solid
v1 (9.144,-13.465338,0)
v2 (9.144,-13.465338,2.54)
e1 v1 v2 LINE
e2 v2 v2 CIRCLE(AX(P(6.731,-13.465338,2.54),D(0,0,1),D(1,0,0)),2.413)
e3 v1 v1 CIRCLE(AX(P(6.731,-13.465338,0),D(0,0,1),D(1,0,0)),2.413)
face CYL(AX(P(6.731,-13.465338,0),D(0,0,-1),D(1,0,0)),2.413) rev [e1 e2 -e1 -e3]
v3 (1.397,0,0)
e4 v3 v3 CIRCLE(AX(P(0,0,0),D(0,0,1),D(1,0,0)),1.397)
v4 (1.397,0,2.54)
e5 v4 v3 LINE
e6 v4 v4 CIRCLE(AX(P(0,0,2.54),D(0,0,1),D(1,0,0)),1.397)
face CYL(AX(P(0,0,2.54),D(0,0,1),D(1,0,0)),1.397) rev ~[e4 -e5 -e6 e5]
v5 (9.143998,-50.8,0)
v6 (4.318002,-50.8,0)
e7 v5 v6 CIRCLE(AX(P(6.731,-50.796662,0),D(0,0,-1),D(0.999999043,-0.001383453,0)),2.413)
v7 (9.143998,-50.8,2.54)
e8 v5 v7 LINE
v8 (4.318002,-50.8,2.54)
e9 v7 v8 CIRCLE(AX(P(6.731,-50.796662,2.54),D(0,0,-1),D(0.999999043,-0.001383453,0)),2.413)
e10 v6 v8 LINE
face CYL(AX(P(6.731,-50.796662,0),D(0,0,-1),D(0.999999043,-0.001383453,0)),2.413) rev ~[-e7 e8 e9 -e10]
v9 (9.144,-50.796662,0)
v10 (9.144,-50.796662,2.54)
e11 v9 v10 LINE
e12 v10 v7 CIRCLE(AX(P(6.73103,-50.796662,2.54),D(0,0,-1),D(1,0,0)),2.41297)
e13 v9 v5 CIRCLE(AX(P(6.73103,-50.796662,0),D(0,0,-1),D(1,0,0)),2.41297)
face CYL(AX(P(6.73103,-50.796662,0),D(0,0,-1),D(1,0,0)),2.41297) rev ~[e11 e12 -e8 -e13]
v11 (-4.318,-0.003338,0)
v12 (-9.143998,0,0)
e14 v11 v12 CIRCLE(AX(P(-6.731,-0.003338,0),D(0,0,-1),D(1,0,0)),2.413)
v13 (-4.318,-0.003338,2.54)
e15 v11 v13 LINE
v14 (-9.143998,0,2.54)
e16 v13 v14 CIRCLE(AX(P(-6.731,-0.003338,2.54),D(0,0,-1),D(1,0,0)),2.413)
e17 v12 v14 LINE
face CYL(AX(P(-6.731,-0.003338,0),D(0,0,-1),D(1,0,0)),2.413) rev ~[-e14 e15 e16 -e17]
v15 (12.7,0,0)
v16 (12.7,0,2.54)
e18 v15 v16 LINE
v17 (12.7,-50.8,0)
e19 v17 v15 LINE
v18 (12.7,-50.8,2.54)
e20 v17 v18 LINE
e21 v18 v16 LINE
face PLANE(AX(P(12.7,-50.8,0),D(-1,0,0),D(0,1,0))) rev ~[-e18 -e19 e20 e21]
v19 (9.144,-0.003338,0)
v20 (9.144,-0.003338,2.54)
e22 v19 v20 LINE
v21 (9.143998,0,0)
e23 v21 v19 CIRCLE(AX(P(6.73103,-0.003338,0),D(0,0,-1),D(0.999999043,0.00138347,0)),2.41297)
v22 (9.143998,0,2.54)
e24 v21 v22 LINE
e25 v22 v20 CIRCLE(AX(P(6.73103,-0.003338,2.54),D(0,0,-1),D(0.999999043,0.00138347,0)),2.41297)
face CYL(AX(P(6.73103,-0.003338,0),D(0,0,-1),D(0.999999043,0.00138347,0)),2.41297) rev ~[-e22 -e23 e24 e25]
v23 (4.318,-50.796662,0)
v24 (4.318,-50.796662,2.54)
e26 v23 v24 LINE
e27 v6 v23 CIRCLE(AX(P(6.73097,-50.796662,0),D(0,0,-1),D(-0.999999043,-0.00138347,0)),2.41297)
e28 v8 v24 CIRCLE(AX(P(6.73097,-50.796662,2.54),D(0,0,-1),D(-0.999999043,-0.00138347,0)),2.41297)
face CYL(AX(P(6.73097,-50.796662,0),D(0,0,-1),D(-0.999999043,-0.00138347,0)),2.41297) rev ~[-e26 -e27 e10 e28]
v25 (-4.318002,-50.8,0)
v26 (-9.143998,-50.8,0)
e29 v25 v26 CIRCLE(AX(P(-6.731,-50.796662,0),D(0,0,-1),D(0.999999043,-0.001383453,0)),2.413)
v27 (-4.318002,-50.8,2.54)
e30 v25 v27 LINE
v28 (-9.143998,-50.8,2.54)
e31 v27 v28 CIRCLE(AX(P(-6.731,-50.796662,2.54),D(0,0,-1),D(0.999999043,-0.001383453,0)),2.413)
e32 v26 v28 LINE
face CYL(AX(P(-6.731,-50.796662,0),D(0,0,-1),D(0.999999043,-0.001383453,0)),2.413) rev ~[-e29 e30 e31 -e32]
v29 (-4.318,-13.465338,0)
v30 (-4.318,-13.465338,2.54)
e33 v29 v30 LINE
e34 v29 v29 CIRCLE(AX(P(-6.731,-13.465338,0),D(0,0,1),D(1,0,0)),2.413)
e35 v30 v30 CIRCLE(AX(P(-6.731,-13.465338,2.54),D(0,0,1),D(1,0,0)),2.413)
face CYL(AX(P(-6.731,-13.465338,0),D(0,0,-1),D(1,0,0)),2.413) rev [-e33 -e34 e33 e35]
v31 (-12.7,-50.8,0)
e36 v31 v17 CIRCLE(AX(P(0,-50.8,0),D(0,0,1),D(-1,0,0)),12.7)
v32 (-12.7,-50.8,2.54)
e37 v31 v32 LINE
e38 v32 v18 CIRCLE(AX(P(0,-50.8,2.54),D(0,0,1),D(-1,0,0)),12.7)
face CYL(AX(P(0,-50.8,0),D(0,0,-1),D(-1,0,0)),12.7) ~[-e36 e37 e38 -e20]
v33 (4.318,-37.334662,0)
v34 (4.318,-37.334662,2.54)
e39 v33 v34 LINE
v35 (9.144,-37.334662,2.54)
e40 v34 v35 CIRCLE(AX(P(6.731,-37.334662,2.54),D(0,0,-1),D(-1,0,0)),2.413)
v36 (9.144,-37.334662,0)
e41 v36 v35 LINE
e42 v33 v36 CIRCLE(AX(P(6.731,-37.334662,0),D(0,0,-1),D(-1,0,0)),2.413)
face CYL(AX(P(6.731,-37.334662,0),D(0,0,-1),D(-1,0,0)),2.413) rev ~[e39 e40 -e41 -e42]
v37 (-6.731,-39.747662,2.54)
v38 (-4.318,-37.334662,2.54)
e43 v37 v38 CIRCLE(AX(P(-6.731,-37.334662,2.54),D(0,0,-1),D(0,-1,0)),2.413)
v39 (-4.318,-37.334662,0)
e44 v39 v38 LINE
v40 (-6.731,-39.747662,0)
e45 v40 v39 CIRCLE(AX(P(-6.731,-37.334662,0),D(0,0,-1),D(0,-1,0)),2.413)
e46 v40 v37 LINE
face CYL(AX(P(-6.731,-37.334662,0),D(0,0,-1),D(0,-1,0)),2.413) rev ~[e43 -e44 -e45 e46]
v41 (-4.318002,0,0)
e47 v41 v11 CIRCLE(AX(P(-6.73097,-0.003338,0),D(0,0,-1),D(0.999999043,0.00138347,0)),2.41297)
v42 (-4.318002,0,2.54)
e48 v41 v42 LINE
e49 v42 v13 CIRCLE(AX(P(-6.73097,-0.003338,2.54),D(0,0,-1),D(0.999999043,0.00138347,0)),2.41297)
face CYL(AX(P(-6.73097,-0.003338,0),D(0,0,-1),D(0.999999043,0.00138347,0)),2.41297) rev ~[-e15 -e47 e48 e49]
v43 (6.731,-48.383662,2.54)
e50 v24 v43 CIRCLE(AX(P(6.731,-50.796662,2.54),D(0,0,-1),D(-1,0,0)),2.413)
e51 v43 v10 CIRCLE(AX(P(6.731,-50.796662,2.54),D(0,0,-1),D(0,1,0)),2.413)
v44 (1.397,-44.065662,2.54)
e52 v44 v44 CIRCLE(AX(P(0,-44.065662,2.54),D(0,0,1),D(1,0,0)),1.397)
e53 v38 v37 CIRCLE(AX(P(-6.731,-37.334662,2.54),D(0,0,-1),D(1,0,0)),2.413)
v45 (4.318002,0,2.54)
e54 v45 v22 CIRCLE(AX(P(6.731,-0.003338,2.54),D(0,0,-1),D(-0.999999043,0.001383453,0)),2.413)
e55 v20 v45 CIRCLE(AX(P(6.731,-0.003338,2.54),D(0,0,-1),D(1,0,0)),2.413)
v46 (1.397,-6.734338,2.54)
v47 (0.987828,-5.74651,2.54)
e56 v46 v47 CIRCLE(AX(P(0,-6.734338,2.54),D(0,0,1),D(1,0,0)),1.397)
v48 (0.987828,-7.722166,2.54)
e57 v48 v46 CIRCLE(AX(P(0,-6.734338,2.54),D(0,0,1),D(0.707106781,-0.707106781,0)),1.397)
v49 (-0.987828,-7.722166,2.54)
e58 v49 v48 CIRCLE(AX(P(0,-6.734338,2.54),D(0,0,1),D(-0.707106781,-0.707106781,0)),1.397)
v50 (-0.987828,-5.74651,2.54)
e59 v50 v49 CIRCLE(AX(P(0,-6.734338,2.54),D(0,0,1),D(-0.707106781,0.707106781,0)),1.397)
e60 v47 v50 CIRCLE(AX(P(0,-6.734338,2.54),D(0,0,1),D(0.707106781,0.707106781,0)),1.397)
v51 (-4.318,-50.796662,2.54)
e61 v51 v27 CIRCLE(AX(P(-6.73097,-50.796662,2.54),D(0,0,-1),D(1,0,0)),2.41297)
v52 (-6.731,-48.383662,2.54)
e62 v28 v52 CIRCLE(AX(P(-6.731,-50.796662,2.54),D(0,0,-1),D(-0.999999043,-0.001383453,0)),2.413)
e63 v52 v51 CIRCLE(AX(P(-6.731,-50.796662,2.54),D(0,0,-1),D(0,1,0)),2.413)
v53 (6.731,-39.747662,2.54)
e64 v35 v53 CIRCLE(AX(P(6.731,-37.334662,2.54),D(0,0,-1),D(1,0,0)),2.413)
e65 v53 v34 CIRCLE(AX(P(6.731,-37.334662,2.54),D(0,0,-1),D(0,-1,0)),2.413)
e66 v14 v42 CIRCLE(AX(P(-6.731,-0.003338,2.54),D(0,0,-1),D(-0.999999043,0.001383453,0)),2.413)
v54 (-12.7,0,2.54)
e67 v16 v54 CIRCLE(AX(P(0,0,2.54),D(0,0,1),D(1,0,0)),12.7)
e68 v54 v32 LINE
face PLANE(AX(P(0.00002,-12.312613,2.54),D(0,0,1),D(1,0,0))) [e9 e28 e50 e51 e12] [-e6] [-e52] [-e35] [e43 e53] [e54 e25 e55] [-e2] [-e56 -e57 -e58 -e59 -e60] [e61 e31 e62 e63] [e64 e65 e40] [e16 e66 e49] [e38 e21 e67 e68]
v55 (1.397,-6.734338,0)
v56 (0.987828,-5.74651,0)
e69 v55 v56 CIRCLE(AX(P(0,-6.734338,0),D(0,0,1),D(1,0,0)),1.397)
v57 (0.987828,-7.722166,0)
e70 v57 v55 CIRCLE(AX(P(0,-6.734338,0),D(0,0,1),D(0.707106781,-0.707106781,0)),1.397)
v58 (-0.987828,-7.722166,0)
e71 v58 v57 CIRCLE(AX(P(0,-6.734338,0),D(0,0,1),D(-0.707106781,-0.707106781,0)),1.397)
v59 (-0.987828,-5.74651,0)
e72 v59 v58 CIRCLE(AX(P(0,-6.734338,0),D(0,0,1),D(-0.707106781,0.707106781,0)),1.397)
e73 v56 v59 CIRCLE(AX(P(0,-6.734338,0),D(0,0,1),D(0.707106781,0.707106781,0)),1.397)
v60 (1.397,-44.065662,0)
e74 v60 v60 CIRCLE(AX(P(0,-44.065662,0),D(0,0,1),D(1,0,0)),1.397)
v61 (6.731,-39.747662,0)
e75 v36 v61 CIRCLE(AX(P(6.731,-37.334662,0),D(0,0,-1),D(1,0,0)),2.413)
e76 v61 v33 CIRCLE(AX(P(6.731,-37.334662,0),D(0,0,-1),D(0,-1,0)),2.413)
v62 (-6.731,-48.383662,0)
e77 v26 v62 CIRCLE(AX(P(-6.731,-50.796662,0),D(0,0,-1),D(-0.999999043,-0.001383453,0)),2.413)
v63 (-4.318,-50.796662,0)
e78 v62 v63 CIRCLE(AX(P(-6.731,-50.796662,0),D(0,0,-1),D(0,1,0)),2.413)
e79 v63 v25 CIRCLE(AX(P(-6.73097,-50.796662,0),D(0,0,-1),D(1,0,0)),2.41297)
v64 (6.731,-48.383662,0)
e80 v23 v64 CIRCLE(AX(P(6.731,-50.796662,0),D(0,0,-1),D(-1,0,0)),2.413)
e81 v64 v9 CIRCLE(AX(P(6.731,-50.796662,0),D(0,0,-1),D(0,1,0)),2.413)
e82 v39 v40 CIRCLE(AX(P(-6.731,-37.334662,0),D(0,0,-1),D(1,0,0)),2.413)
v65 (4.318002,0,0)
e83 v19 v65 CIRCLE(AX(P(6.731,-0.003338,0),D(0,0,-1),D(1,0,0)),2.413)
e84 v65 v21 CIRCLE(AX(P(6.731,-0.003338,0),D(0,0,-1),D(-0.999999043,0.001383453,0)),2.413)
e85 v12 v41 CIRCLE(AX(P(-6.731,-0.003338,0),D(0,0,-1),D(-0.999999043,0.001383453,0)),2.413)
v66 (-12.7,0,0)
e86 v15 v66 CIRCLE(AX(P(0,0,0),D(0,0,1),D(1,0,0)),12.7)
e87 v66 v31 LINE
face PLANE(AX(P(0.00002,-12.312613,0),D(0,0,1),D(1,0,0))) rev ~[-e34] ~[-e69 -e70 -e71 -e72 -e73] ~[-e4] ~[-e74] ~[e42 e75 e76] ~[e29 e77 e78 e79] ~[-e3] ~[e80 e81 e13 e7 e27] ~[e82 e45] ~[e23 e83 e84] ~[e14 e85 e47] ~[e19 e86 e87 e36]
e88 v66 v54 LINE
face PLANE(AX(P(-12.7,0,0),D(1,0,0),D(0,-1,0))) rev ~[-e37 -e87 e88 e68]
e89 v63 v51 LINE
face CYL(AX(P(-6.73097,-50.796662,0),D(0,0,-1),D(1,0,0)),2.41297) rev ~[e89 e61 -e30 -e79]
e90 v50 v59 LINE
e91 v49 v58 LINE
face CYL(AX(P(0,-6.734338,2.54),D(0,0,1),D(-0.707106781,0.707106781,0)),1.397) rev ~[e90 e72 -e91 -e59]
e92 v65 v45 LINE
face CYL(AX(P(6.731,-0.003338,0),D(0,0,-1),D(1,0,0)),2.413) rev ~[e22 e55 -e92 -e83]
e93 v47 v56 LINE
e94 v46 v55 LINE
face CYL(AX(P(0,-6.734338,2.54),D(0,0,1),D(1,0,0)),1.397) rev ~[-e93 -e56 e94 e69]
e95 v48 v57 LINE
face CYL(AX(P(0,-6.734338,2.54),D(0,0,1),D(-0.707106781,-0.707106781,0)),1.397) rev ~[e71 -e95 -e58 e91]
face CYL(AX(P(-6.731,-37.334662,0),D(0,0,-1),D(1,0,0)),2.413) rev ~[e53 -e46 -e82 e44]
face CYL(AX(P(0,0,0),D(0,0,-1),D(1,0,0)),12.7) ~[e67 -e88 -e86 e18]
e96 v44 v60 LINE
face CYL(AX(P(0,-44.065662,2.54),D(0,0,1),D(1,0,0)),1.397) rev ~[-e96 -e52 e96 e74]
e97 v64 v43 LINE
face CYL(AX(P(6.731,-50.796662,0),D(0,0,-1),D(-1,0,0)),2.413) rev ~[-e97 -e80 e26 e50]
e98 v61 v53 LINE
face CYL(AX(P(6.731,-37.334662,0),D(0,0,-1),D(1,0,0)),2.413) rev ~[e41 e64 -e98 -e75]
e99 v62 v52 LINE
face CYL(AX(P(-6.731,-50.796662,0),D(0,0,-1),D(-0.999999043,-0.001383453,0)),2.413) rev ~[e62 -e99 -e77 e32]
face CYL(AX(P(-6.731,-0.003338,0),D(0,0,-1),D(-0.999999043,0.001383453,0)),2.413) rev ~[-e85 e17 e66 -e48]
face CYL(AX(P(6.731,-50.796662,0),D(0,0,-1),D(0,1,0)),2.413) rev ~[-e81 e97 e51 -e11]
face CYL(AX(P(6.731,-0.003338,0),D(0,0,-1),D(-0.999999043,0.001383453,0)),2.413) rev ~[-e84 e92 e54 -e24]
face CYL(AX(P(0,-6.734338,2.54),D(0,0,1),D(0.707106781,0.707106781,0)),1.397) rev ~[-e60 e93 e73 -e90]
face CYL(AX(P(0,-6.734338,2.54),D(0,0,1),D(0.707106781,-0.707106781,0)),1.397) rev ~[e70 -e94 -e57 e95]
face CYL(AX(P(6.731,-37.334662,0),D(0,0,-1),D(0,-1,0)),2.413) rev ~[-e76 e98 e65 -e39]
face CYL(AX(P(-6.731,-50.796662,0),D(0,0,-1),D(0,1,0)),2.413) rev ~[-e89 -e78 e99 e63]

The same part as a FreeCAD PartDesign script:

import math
import FreeCAD as App
import Part
import Sketcher
Q = App.Units.Quantity

doc = App.newDocument("Part")
body = doc.addObject("PartDesign::Body", "Body")

# Sketch on XY plane
sketch1 = body.newObject("Sketcher::SketchObject", "Sketch")
sketch1.AttachmentSupport = (doc.getObject("XY_Plane"), [""])
sketch1.MapMode = "FlatFace"
sketch1.addGeometry(Part.ArcOfCircle(Part.Circle(App.Vector(0, 0, 0), App.Vector(0, 0, 1), 12.7), math.radians(0), math.radians(180)), False)
sketch1.addGeometry(Part.LineSegment(App.Vector(-12.7, 0, 0), App.Vector(-12.7, -50.8, 0)), False)
sketch1.addGeometry(Part.ArcOfCircle(Part.Circle(App.Vector(0, -50.8, 0), App.Vector(0, 0, 1), 12.7), math.radians(180), math.radians(360)), False)
sketch1.addGeometry(Part.LineSegment(App.Vector(12.7, -50.8, 0), App.Vector(12.7, 0, 0)), False)
sketch1.addGeometry(Part.ArcOfCircle(Part.Circle(App.Vector(-6.731, -50.7967, 0), App.Vector(0, 0, 1), 2.413), math.radians(90), math.radians(180)), False)
sketch1.addGeometry(Part.ArcOfCircle(Part.Circle(App.Vector(-6.731, -50.7967, 0), App.Vector(0, 0, 1), 2.413), math.radians(0), math.radians(90)), False)
sketch1.addGeometry(Part.ArcOfCircle(Part.Circle(App.Vector(-6.731, -50.7967, 0), App.Vector(0, 0, 1), 2.413), math.radians(-0.08), math.radians(0)), False)
sketch1.addGeometry(Part.ArcOfCircle(Part.Circle(App.Vector(-6.731, -50.7967, 0), App.Vector(0, 0, 1), 2.413), math.radians(-180), math.radians(0)), False)
sketch1.addGeometry(Part.ArcOfCircle(Part.Circle(App.Vector(-6.731, -37.3347, 0), App.Vector(0, 0, 1), 2.413), math.radians(0), math.radians(270)), False)
sketch1.addGeometry(Part.ArcOfCircle(Part.Circle(App.Vector(-6.731, -37.3347, 0), App.Vector(0, 0, 1), 2.413), math.radians(-90), math.radians(0)), False)
sketch1.addGeometry(Part.ArcOfCircle(Part.Circle(App.Vector(6.731, -37.3347, 0), App.Vector(0, 0, 1), 2.413), math.radians(0), math.radians(180)), False)
sketch1.addGeometry(Part.ArcOfCircle(Part.Circle(App.Vector(6.731, -37.3347, 0), App.Vector(0, 0, 1), 2.413), math.radians(-90), math.radians(0)), False)
sketch1.addGeometry(Part.ArcOfCircle(Part.Circle(App.Vector(6.731, -37.3347, 0), App.Vector(0, 0, 1), 2.413), math.radians(180), math.radians(270)), False)
sketch1.addGeometry(Part.ArcOfCircle(Part.Circle(App.Vector(6.731, -50.7967, 0), App.Vector(0, 0, 1), 2.413), math.radians(0), math.radians(90)), False)
sketch1.addGeometry(Part.ArcOfCircle(Part.Circle(App.Vector(6.731, -50.7967, 0), App.Vector(0, 0, 1), 2.413), math.radians(-0.08), math.radians(0)), False)
sketch1.addGeometry(Part.ArcOfCircle(Part.Circle(App.Vector(6.731, -50.7967, 0), App.Vector(0, 0, 1), 2.413), math.radians(-180), math.radians(0)), False)
sketch1.addGeometry(Part.ArcOfCircle(Part.Circle(App.Vector(6.731, -50.7967, 0), App.Vector(0, 0, 1), 2.413), math.radians(180), math.radians(180.08)), False)
sketch1.addGeometry(Part.ArcOfCircle(Part.Circle(App.Vector(6.731, -50.7967, 0), App.Vector(0, 0, 1), 2.413), math.radians(90), math.radians(180)), False)
sketch1.addGeometry(Part.ArcOfCircle(Part.Circle(App.Vector(6.731, -0.0033, 0), App.Vector(0, 0, 1), 2.413), math.radians(0), math.radians(0.08)), False)
sketch1.addGeometry(Part.ArcOfCircle(Part.Circle(App.Vector(6.731, -0.0033, 0), App.Vector(0, 0, 1), 2.413), math.radians(180), math.radians(360)), False)
sketch1.addGeometry(Part.ArcOfCircle(Part.Circle(App.Vector(6.731, -0.0033, 0), App.Vector(0, 0, 1), 2.413), math.radians(0), math.radians(180)), False)
sketch1.addGeometry(Part.ArcOfCircle(Part.Circle(App.Vector(-6.731, -0.0033, 0), App.Vector(0, 0, 1), 2.413), math.radians(180), math.radians(360)), False)
sketch1.addGeometry(Part.ArcOfCircle(Part.Circle(App.Vector(-6.731, -0.0033, 0), App.Vector(0, 0, 1), 2.413), math.radians(0), math.radians(180)), False)
sketch1.addGeometry(Part.ArcOfCircle(Part.Circle(App.Vector(-6.731, -0.0033, 0), App.Vector(0, 0, 1), 2.413), math.radians(0), math.radians(0.08)), False)
sketch1.addGeometry(Part.Circle(App.Vector(-6.731, -13.4653, 0), App.Vector(0, 0, 1), 2.413), False)
sketch1.addGeometry(Part.Circle(App.Vector(6.731, -13.4653, 0), App.Vector(0, 0, 1), 2.413), False)
sketch1.addConstraint(Sketcher.Constraint("Tangent", 0, 2, 1, 1))
sketch1.addConstraint(Sketcher.Constraint("Tangent", 1, 2, 2, 1))
sketch1.addConstraint(Sketcher.Constraint("Tangent", 2, 2, 3, 1))
sketch1.addConstraint(Sketcher.Constraint("Tangent", 3, 2, 0, 1))
sketch1.addConstraint(Sketcher.Constraint("Tangent", 4, 1, 5, 2))
sketch1.addConstraint(Sketcher.Constraint("Tangent", 5, 1, 6, 2))
sketch1.addConstraint(Sketcher.Constraint("Tangent", 6, 1, 7, 2))
sketch1.addConstraint(Sketcher.Constraint("Tangent", 7, 1, 4, 2))
sketch1.addConstraint(Sketcher.Constraint("Tangent", 8, 1, 9, 2))
sketch1.addConstraint(Sketcher.Constraint("Coincident", 9, 1, 8, 2))
sketch1.addConstraint(Sketcher.Constraint("Tangent", 10, 1, 11, 2))
sketch1.addConstraint(Sketcher.Constraint("Tangent", 11, 1, 12, 2))
sketch1.addConstraint(Sketcher.Constraint("Tangent", 12, 1, 10, 2))
sketch1.addConstraint(Sketcher.Constraint("Tangent", 13, 1, 14, 2))
sketch1.addConstraint(Sketcher.Constraint("Tangent", 14, 1, 15, 2))
sketch1.addConstraint(Sketcher.Constraint("Tangent", 15, 1, 16, 2))
sketch1.addConstraint(Sketcher.Constraint("Tangent", 16, 1, 17, 2))
sketch1.addConstraint(Sketcher.Constraint("Tangent", 17, 1, 13, 2))
sketch1.addConstraint(Sketcher.Constraint("Tangent", 18, 1, 19, 2))
sketch1.addConstraint(Sketcher.Constraint("Tangent", 19, 1, 20, 2))
sketch1.addConstraint(Sketcher.Constraint("Coincident", 20, 1, 18, 2))
sketch1.addConstraint(Sketcher.Constraint("Tangent", 21, 1, 22, 2))
sketch1.addConstraint(Sketcher.Constraint("Tangent", 22, 1, 23, 2))
sketch1.addConstraint(Sketcher.Constraint("Coincident", 23, 1, 21, 2))
sketch1.addConstraint(Sketcher.Constraint("Vertical", 1))
sketch1.addConstraint(Sketcher.Constraint("Vertical", 3))
sketch1.addConstraint(Sketcher.Constraint("Coincident", 0, 3, -1, 1))
sketch1.addConstraint(Sketcher.Constraint("Equal", 7, 8))
sketch1.addConstraint(Sketcher.Constraint("Equal", 9, 10))
sketch1.addConstraint(Sketcher.Constraint("Equal", 12, 13))
sketch1.addConstraint(Sketcher.Constraint("Equal", 6, 14))
sketch1.addConstraint(Sketcher.Constraint("Equal", 14, 16))
sketch1.addConstraint(Sketcher.Constraint("Equal", 16, 18))
sketch1.addConstraint(Sketcher.Constraint("Equal", 17, 19))
sketch1.addConstraint(Sketcher.Constraint("Equal", 20, 21))
sketch1.addConstraint(Sketcher.Constraint("Equal", 18, 23))
sketch1.addConstraint(Sketcher.Constraint("Equal", 22, 24))
sketch1.addConstraint(Sketcher.Constraint("Equal", 24, 25))
sketch1.addConstraint(Sketcher.Constraint("Symmetric", 20, 1, 21, 1, -1, 1))
sketch1.addConstraint(Sketcher.Constraint("Symmetric", 19, 1, 22, 1, -1, 1))
sketch1.addConstraint(Sketcher.Constraint("Symmetric", 8, 3, 10, 3, -2))
sketch1.addConstraint(Sketcher.Constraint("Symmetric", 4, 3, 13, 3, -2))
sketch1.addConstraint(Sketcher.Constraint("Symmetric", 24, 3, 25, 3, -2))
sketch1.addConstraint(Sketcher.Constraint("PointOnObject", 19, 1, -1))
sketch1.addConstraint(Sketcher.Constraint("PointOnObject", 20, 1, -1))
sketch1.addConstraint(Sketcher.Constraint("Horizontal", 17, 3, 5, 1))
sketch1.addConstraint(Sketcher.Constraint("Horizontal", 2, 2, 6, 1))
sketch1.addConstraint(Sketcher.Constraint("Horizontal", 6, 1, 7, 1))
sketch1.addConstraint(Sketcher.Constraint("Horizontal", 12, 3, 8, 1))
sketch1.addConstraint(Sketcher.Constraint("Horizontal", 8, 1, 10, 1))
sketch1.addConstraint(Sketcher.Constraint("Horizontal", 10, 1, 12, 1))
sketch1.addConstraint(Sketcher.Constraint("Horizontal", 5, 1, 13, 1))
sketch1.addConstraint(Sketcher.Constraint("Horizontal", 7, 1, 14, 1))
sketch1.addConstraint(Sketcher.Constraint("Horizontal", 14, 1, 15, 1))
sketch1.addConstraint(Sketcher.Constraint("Horizontal", 13, 1, 16, 1))
sketch1.addConstraint(Sketcher.Constraint("Horizontal", 23, 3, 18, 1))
sketch1.addConstraint(Sketcher.Constraint("Horizontal", 18, 1, 23, 1))
sketch1.addConstraint(Sketcher.Constraint("Vertical", 7, 3, 8, 3))
sketch1.addConstraint(Sketcher.Constraint("Vertical", 14, 3, 18, 3))
sketch1.addConstraint(Sketcher.Constraint("Vertical", 22, 3, 24, 3))
sketch1.addConstraint(Sketcher.Constraint("Vertical", 24, 3, 4, 1))
sketch1.addConstraint(Sketcher.Constraint("Vertical", 4, 1, 9, 1))
sketch1.addConstraint(Sketcher.Constraint("Vertical", 25, 3, 11, 1))
sketch1.addConstraint(Sketcher.Constraint("Vertical", 11, 1, 17, 1))
sketch1.addConstraint(Sketcher.Constraint("Radius", 0, Q("0.5 in")))
sketch1.addConstraint(Sketcher.Constraint("Diameter", 24, Q("0.19 in")))
sketch1.addConstraint(Sketcher.Constraint("DistanceY", 1, 2, 1, 1, Q("2 in")))
sketch1.addConstraint(Sketcher.Constraint("DistanceX", 5, 1, -1, 1, Q("0.17 in")))
sketch1.addConstraint(Sketcher.Constraint("DistanceY", 4, 3, 8, 3, Q("0.53 in")))
sketch1.addConstraint(Sketcher.Constraint("DistanceY", 24, 3, 21, 3, Q("0.53 in")))
sketch1.addConstraint(Sketcher.Constraint("Radius", 6, Q("2.41297 mm")))
sketch1.addConstraint(Sketcher.Constraint("DistanceY", 4, 3, -1, 1, Q("50.796662 mm")))
sketch1.addConstraint(Sketcher.Constraint("DistanceY", 18, 3, -1, 1, Q("0.003338 mm")))
pad1 = body.newObject("PartDesign::Pad", "Pad")
pad1.Profile = sketch1
pad1.Length = Q("0.1 in")

# Sketch on XY plane
sketch2 = body.newObject("Sketcher::SketchObject", "Sketch001")
sketch2.AttachmentSupport = (doc.getObject("XY_Plane"), [""])
sketch2.MapMode = "FlatFace"
sketch2.AttachmentOffset = App.Placement(App.Vector(0, 0, 0.1 * 25.4), App.Rotation())
sketch2.addGeometry(Part.Circle(App.Vector(0, 0, 0), App.Vector(0, 0, 1), 1.4), False)
sketch2.addGeometry(Part.ArcOfCircle(Part.Circle(App.Vector(0, -6.7, 0), App.Vector(0, 0, 1), 1.4), math.radians(45), math.radians(135)), False)
sketch2.addGeometry(Part.ArcOfCircle(Part.Circle(App.Vector(0, -6.7, 0), App.Vector(0, 0, 1), 1.4), math.radians(135), math.radians(225)), False)
sketch2.addGeometry(Part.ArcOfCircle(Part.Circle(App.Vector(0, -6.7, 0), App.Vector(0, 0, 1), 1.4), math.radians(-135), math.radians(-45)), False)
sketch2.addGeometry(Part.ArcOfCircle(Part.Circle(App.Vector(0, -6.7, 0), App.Vector(0, 0, 1), 1.4), math.radians(-45), math.radians(0)), False)
sketch2.addGeometry(Part.ArcOfCircle(Part.Circle(App.Vector(0, -6.7, 0), App.Vector(0, 0, 1), 1.4), math.radians(0), math.radians(45)), False)
sketch2.addGeometry(Part.Circle(App.Vector(0, -44.1, 0), App.Vector(0, 0, 1), 1.4), False)
sketch2.addConstraint(Sketcher.Constraint("Tangent", 1, 2, 2, 1))
sketch2.addConstraint(Sketcher.Constraint("Tangent", 2, 2, 3, 1))
sketch2.addConstraint(Sketcher.Constraint("Tangent", 3, 2, 4, 1))
sketch2.addConstraint(Sketcher.Constraint("Tangent", 4, 2, 5, 1))
sketch2.addConstraint(Sketcher.Constraint("Tangent", 5, 2, 1, 1))
sketch2.addConstraint(Sketcher.Constraint("Coincident", 0, 3, -1, 1))
sketch2.addConstraint(Sketcher.Constraint("Coincident", 3, 3, 1, 3))
sketch2.addConstraint(Sketcher.Constraint("Equal", 0, 1))
sketch2.addConstraint(Sketcher.Constraint("Equal", 5, 6))
sketch2.addConstraint(Sketcher.Constraint("Symmetric", 2, 2, 3, 2, -2))
sketch2.addConstraint(Sketcher.Constraint("PointOnObject", 6, 3, -2))
sketch2.addConstraint(Sketcher.Constraint("Horizontal", 5, 3, 4, 2))
sketch2.addConstraint(Sketcher.Constraint("Horizontal", 1, 2, 5, 2))
sketch2.addConstraint(Sketcher.Constraint("Vertical", 1, 2, 2, 2))
sketch2.addConstraint(Sketcher.Constraint("Diameter", 0, Q("0.11 in")))
sketch2.addConstraint(Sketcher.Constraint("DistanceY", 1, 3, -1, 1, Q("6.734338 mm")))
sketch2.addConstraint(Sketcher.Constraint("DistanceY", 6, 3, -1, 1, Q("44.065662 mm")))
sketch2.addConstraint(Sketcher.Constraint("DistanceX", 1, 2, -1, 1, Q("0.987828 mm")))
pocket1 = body.newObject("PartDesign::Pocket", "Pocket")
pocket1.Profile = sketch2
pocket1.Type = "ThroughAll"

doc.recompute()
